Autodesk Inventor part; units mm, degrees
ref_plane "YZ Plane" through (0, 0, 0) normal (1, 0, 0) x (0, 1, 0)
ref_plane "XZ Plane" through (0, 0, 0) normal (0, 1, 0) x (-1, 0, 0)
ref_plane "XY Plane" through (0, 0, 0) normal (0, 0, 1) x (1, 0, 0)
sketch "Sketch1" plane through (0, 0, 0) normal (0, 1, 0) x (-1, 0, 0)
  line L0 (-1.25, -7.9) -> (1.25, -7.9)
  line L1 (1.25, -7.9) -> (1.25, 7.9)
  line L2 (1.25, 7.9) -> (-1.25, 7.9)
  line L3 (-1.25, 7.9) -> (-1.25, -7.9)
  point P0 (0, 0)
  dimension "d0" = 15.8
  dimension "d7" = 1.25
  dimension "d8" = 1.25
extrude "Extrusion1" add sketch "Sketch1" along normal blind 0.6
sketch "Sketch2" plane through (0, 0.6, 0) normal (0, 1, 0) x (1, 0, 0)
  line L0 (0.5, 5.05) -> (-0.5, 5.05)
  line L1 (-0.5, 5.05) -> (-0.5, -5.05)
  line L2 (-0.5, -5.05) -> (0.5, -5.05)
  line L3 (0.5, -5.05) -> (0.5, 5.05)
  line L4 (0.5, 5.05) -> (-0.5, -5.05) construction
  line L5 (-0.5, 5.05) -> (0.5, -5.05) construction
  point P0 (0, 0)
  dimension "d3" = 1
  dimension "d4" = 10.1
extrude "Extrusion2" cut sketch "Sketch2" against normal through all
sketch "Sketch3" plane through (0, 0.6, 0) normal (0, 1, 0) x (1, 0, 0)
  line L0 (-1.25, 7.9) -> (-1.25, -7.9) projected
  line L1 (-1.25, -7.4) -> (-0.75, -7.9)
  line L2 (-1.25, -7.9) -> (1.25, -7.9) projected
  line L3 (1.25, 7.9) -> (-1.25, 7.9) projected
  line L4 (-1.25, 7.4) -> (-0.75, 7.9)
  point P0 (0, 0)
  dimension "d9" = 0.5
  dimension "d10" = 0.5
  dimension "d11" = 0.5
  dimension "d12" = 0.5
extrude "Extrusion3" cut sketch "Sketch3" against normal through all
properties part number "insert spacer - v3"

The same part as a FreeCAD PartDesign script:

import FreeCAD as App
import Part
import Sketcher


def add_polygon(sketch, points):
    """Adds a closed chain of lines whose ends are joined by coincident constraints."""
    first, n = sketch.GeometryCount, len(points)
    for a, b in zip(points, points[1:] + points[:1]):
        sketch.addGeometry(Part.LineSegment(App.Vector(*a, 0), App.Vector(*b, 0)), False)
    for i in range(n):
        sketch.addConstraint(Sketcher.Constraint("Coincident", first + i, 2, first + (i + 1) % n, 1))

doc = App.newDocument("Part")
body = doc.addObject("PartDesign::Body", "Body")

sketch1 = body.newObject("Sketcher::SketchObject", "Sketch")
sketch1.AttachmentSupport = (doc.getObject("XZ_Plane"), [""])
sketch1.MapMode = "FlatFace"
add_polygon(sketch1, [(1.25, 7.9), (1.25, -7.9), (-1.25, -7.9), (-1.25, 7.9)])
sketch1.addConstraint(Sketcher.Constraint("Vertical", 0))
sketch1.addConstraint(Sketcher.Constraint("Horizontal", 1))
sketch1.addConstraint(Sketcher.Constraint("Vertical", 2))
sketch1.addConstraint(Sketcher.Constraint("Horizontal", 3))
sketch1.addConstraint(Sketcher.Constraint("Symmetric", 0, 2, 2, 2, -1, 1))
sketch1.addConstraint(Sketcher.Constraint("DistanceY", 0, 2, 0, 1, 15.8))
sketch1.addConstraint(Sketcher.Constraint("DistanceX", -1, 1, 0, 2, 1.25))
pad1 = body.newObject("PartDesign::Pad", "Pad")
pad1.Profile = sketch1
pad1.Length = 0.6
pad1.Reversed = True

sketch2 = body.newObject("Sketcher::SketchObject", "Sketch001")
sketch2.AttachmentSupport = (doc.getObject("XZ_Plane"), [""])
sketch2.MapMode = "FlatFace"
sketch2.AttachmentOffset = App.Placement(App.Vector(0, 0, -0.6), App.Rotation())
add_polygon(sketch2, [(0.5, 5.05), (0.5, -5.05), (-0.5, -5.05), (-0.5, 5.05)])
sketch2.addConstraint(Sketcher.Constraint("Vertical", 0))
sketch2.addConstraint(Sketcher.Constraint("Horizontal", 1))
sketch2.addConstraint(Sketcher.Constraint("Vertical", 2))
sketch2.addConstraint(Sketcher.Constraint("Horizontal", 3))
sketch2.addConstraint(Sketcher.Constraint("Symmetric", 0, 2, 2, 2, -1, 1))
sketch2.addConstraint(Sketcher.Constraint("DistanceX", 1, 2, 1, 1, 1.0))
sketch2.addConstraint(Sketcher.Constraint("DistanceY", 0, 2, 0, 1, 10.1))
pocket1 = body.newObject("PartDesign::Pocket", "Pocket")
pocket1.Profile = sketch2
pocket1.Type = "ThroughAll"
pocket1.Reversed = True

sketch3 = body.newObject("Sketcher::SketchObject", "Sketch002")
sketch3.AttachmentSupport = (doc.getObject("XZ_Plane"), [""])
sketch3.MapMode = "FlatFace"
sketch3.AttachmentOffset = App.Placement(App.Vector(0, 0, -0.6), App.Rotation())
add_polygon(sketch3, [(-0.75, -7.9), (-1.25, -7.9), (-1.25, -7.4)])
add_polygon(sketch3, [(-0.75, 7.9), (-1.25, 7.4), (-1.25, 7.9)])
sketch3.addConstraint(Sketcher.Constraint("Horizontal", 0))
sketch3.addConstraint(Sketcher.Constraint("Vertical", 1))
sketch3.addConstraint(Sketcher.Constraint("Vertical", 4))
sketch3.addConstraint(Sketcher.Constraint("Horizontal", 5))
sketch3.addConstraint(Sketcher.Constraint("Symmetric", 1, 2, 3, 2, -1))
sketch3.addConstraint(Sketcher.Constraint("Symmetric", 2, 2, 5, 2, -1))
sketch3.addConstraint(Sketcher.Constraint("Perpendicular", 2, 3))
sketch3.addConstraint(Sketcher.Constraint("DistanceX", 0, 2, 0, 1, 0.5))
sketch3.addConstraint(Sketcher.Constraint("DistanceY", 0, 2, -1, 1, 7.9))
sketch3.addConstraint(Sketcher.Constraint("DistanceX", 0, 2, -1, 1, 1.25))
pocket2 = body.newObject("PartDesign::Pocket", "Pocket001")
pocket2.Profile = sketch3
pocket2.Type = "ThroughAll"
pocket2.Reversed = True

doc.recompute()
